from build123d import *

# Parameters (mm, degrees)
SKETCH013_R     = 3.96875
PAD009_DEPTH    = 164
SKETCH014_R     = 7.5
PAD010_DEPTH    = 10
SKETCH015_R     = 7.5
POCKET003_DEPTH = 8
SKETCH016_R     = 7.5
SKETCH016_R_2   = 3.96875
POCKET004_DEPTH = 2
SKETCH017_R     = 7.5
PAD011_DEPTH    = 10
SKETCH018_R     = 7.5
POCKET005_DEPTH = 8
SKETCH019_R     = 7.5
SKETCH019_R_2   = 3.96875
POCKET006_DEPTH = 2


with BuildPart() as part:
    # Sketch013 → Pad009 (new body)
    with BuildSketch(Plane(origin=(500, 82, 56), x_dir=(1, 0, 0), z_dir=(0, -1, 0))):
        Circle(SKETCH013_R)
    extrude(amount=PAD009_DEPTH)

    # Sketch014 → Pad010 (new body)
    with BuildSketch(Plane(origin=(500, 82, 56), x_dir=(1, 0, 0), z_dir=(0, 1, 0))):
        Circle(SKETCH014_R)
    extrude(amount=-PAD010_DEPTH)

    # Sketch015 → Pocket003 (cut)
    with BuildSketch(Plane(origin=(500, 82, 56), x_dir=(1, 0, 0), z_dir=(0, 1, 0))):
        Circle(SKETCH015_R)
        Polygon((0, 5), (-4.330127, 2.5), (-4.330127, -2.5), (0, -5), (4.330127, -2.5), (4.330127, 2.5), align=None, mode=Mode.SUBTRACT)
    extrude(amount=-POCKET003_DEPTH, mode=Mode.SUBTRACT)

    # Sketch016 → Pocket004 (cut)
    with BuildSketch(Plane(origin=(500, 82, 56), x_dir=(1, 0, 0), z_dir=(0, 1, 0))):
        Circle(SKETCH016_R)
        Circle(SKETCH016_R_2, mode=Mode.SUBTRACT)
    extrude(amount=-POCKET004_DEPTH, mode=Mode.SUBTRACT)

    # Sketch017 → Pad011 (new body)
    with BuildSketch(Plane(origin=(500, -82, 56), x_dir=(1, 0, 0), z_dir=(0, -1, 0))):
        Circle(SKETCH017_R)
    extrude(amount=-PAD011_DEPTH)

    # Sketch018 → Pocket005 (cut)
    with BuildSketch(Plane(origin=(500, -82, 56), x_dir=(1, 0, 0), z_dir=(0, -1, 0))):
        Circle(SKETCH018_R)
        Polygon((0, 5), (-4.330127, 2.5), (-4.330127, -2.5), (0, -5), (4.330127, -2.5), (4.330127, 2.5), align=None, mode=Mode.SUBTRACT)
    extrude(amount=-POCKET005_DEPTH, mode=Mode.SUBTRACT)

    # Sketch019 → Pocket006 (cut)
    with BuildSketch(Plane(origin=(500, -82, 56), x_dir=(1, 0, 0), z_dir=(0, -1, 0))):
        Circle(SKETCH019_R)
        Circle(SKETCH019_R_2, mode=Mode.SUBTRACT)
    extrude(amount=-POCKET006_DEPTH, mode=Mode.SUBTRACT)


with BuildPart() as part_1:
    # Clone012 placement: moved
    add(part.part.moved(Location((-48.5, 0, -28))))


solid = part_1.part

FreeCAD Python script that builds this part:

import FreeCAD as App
import Part
import Sketcher

V = App.Vector
Q = App.Units.Quantity

doc = App.newDocument("Part")
body = doc.addObject("PartDesign::Body", "Body")

# Sketch on XZ plane
sketch1 = body.newObject("Sketcher::SketchObject", "Sketch")
sketch1.AttachmentSupport = (doc.getObject("XZ_Plane"), [""])
sketch1.MapMode = "FlatFace"
sketch1.AttachmentOffset = App.Placement(V(0, 0, -82), App.Rotation())
sketch1.addGeometry(Part.Circle(V(500, 56, 0), V(0, 0, 1), 4), False)
sketch1.addConstraint([
    Sketcher.Constraint("DistanceX", -1, 1, 0, 3, 500.0),
    Sketcher.Constraint("DistanceY", -1, 1, 0, 3, 56.0),
    Sketcher.Constraint("Diameter", 0, 7.9375),
])
pad1 = body.newObject("PartDesign::Pad", "Pad")
pad1.Profile = sketch1
pad1.Length = 164

# Sketch on XZ plane
sketch2 = body.newObject("Sketcher::SketchObject", "Sketch001")
sketch2.AttachmentSupport = (doc.getObject("XZ_Plane"), [""])
sketch2.MapMode = "FlatFace"
sketch2.AttachmentOffset = App.Placement(V(0, 0, -82), App.Rotation())
sketch2.addGeometry(Part.Circle(V(500, 56, 0), V(0, 0, 1), 8), False)
sketch2.addConstraint([
    Sketcher.Constraint("Diameter", 0, 15.0),
    Sketcher.Constraint("DistanceX", -1, 1, 0, 3, 500.0),
    Sketcher.Constraint("DistanceY", -1, 1, 0, 3, 56.0),
])
pad2 = body.newObject("PartDesign::Pad", "Pad001")
pad2.Profile = sketch2
pad2.Length = 10

# Sketch on XZ plane
sketch3 = body.newObject("Sketcher::SketchObject", "Sketch002")
sketch3.AttachmentSupport = (doc.getObject("XZ_Plane"), [""])
sketch3.MapMode = "FlatFace"
sketch3.AttachmentOffset = App.Placement(V(0, 0, -82), App.Rotation())
sketch3.addGeometry([
    Part.Circle(V(500, 56, 0), V(0, 0, 1), 7.5),  # 0
    Part.LineSegment(V(495.7, 53.5, 0), V(500, 51, 0)),  # 1
    Part.LineSegment(V(500, 51, 0), V(504.3, 53.5, 0)),  # 2
    Part.LineSegment(V(504.3, 53.5, 0), V(504.3, 58.5, 0)),  # 3
    Part.LineSegment(V(504.3, 58.5, 0), V(500, 61, 0)),  # 4
    Part.LineSegment(V(500, 61, 0), V(495.7, 58.5, 0)),  # 5
    Part.LineSegment(V(495.7, 58.5, 0), V(495.7, 53.5, 0)),  # 6
], False)
sketch3.addConstraint([
    Sketcher.Constraint("Coincident", 1, 2, 2, 1),
    Sketcher.Constraint("Coincident", 2, 2, 3, 1),
    Sketcher.Constraint("Coincident", 3, 2, 4, 1),
    Sketcher.Constraint("Coincident", 4, 2, 5, 1),
    Sketcher.Constraint("Coincident", 5, 2, 6, 1),
    Sketcher.Constraint("Coincident", 6, 2, 1, 1),
    Sketcher.Constraint("Vertical", 3),
    Sketcher.Constraint("Vertical", 6),
    Sketcher.Constraint("Parallel", 1, 4),
    Sketcher.Constraint("Parallel", 2, 5),
    Sketcher.Constraint("Horizontal", 3, 2, 5, 2),
    Sketcher.Constraint("Horizontal", 2, 2, 6, 2),
    Sketcher.Constraint("Vertical", 0, 3, 1, 2),
    Sketcher.Constraint("Vertical", 1, 2, 4, 2),
    Sketcher.Constraint("Diameter", 0, 15.0),
    Sketcher.Constraint("DistanceY", 3, 1, 3, 2, 5.0),
    Sketcher.Constraint("Angle", 1, Q("-30 deg")),
    Sketcher.Constraint("Distance", 1, 5.0),
    Sketcher.Constraint("DistanceX", -1, 1, 0, 3, 500.0),
    Sketcher.Constraint("DistanceY", -1, 1, 0, 3, 56.0),
    Sketcher.Constraint("DistanceY", -1, 1, 1, 2, 51.0),
])
pocket1 = body.newObject("PartDesign::Pocket", "Pocket")
pocket1.Profile = sketch3
pocket1.Length = 8
pocket1.Reversed = True

# Sketch on XZ plane
sketch4 = body.newObject("Sketcher::SketchObject", "Sketch003")
sketch4.AttachmentSupport = (doc.getObject("XZ_Plane"), [""])
sketch4.MapMode = "FlatFace"
sketch4.AttachmentOffset = App.Placement(V(0, 0, -82), App.Rotation())
sketch4.addGeometry([
    Part.Circle(V(500, 56, 0), V(0, 0, 1), 7.5),
    Part.Circle(V(500, 56, 0), V(0, 0, 1), 4),
], False)
sketch4.addConstraint([
    Sketcher.Constraint("Coincident", 1, 3, 0, 3),
    Sketcher.Constraint("Diameter", 0, 15.0),
    Sketcher.Constraint("DistanceX", -1, 1, 0, 3, 500.0),
    Sketcher.Constraint("DistanceY", -1, 1, 0, 3, 56.0),
    Sketcher.Constraint("Diameter", 1, 7.9375),
])
pocket2 = body.newObject("PartDesign::Pocket", "Pocket001")
pocket2.Profile = sketch4
pocket2.Length = 2
pocket2.Reversed = True

# Sketch on XZ plane
sketch5 = body.newObject("Sketcher::SketchObject", "Sketch004")
sketch5.AttachmentSupport = (doc.getObject("XZ_Plane"), [""])
sketch5.MapMode = "FlatFace"
sketch5.AttachmentOffset = App.Placement(V(0, 0, 82), App.Rotation())
sketch5.addGeometry(Part.Circle(V(500, 56, 0), V(0, 0, 1), 8), False)
sketch5.addConstraint([
    Sketcher.Constraint("Diameter", 0, 15.0),
    Sketcher.Constraint("DistanceX", -1, 1, 0, 3, 500.0),
    Sketcher.Constraint("DistanceY", -1, 1, 0, 3, 56.0),
])
pad3 = body.newObject("PartDesign::Pad", "Pad002")
pad3.Profile = sketch5
pad3.Length = 10
pad3.Reversed = True

# Sketch on XZ plane
sketch6 = body.newObject("Sketcher::SketchObject", "Sketch005")
sketch6.AttachmentSupport = (doc.getObject("XZ_Plane"), [""])
sketch6.MapMode = "FlatFace"
sketch6.AttachmentOffset = App.Placement(V(0, 0, 82), App.Rotation())
sketch6.addGeometry([
    Part.Circle(V(500, 56, 0), V(0, 0, 1), 7.5),  # 0
    Part.LineSegment(V(495.7, 58.5, 0), V(500, 61, 0)),  # 1
    Part.LineSegment(V(500, 61, 0), V(504.3, 58.5, 0)),  # 2
    Part.LineSegment(V(504.3, 58.5, 0), V(504.3, 53.5, 0)),  # 3
    Part.LineSegment(V(504.3, 53.5, 0), V(500, 51, 0)),  # 4
    Part.LineSegment(V(500, 51, 0), V(495.7, 53.5, 0)),  # 5
    Part.LineSegment(V(495.7, 53.5, 0), V(495.7, 58.5, 0)),  # 6
], False)
sketch6.addConstraint([
    Sketcher.Constraint("Coincident", 1, 2, 2, 1),
    Sketcher.Constraint("Coincident", 2, 2, 3, 1),
    Sketcher.Constraint("Coincident", 3, 2, 4, 1),
    Sketcher.Constraint("Coincident", 4, 2, 5, 1),
    Sketcher.Constraint("Coincident", 5, 2, 6, 1),
    Sketcher.Constraint("Coincident", 6, 2, 1, 1),
    Sketcher.Constraint("Vertical", 3),
    Sketcher.Constraint("Vertical", 6),
    Sketcher.Constraint("Parallel", 1, 4),
    Sketcher.Constraint("Parallel", 2, 5),
    Sketcher.Constraint("Horizontal", 3, 2, 5, 2),
    Sketcher.Constraint("Horizontal", 2, 2, 6, 2),
    Sketcher.Constraint("Vertical", 0, 3, 1, 2),
    Sketcher.Constraint("Vertical", 1, 2, 4, 2),
    Sketcher.Constraint("Diameter", 0, 15.0),
    Sketcher.Constraint("DistanceY", 3, 2, 3, 1, 5.0),
    Sketcher.Constraint("Angle", 1, Q("30 deg")),
    Sketcher.Constraint("Distance", 1, 5.0),
    Sketcher.Constraint("DistanceX", -1, 1, 0, 3, 500.0),
    Sketcher.Constraint("DistanceY", -1, 1, 0, 3, 56.0),
    Sketcher.Constraint("DistanceY", -1, 1, 1, 2, 61.0),
])
pocket3 = body.newObject("PartDesign::Pocket", "Pocket002")
pocket3.Profile = sketch6
pocket3.Length = 8

# Sketch on XZ plane
sketch7 = body.newObject("Sketcher::SketchObject", "Sketch006")
sketch7.AttachmentSupport = (doc.getObject("XZ_Plane"), [""])
sketch7.MapMode = "FlatFace"
sketch7.AttachmentOffset = App.Placement(V(0, 0, 82), App.Rotation())
sketch7.addGeometry([
    Part.Circle(V(500, 56, 0), V(0, 0, 1), 7.5),
    Part.Circle(V(500, 56, 0), V(0, 0, 1), 4),
], False)
sketch7.addConstraint([
    Sketcher.Constraint("Coincident", 1, 3, 0, 3),
    Sketcher.Constraint("Diameter", 0, 15.0),
    Sketcher.Constraint("DistanceX", -1, 1, 0, 3, 500.0),
    Sketcher.Constraint("DistanceY", -1, 1, 0, 3, 56.0),
    Sketcher.Constraint("Diameter", 1, 7.9375),
])
pocket4 = body.newObject("PartDesign::Pocket", "Pocket003")
pocket4.Profile = sketch7
pocket4.Length = 2
body2 = doc.addObject("PartDesign::Body", "Body001")
doc.recompute()

body.Placement = App.Placement(V(-48.5, 0, -28), App.Rotation(V(0, 0, 1), 0))
boolean = body2.newObject("PartDesign::Boolean", "Boolean")
boolean.Type = "Fuse"
boolean.addObjects([body])

doc.recompute()
